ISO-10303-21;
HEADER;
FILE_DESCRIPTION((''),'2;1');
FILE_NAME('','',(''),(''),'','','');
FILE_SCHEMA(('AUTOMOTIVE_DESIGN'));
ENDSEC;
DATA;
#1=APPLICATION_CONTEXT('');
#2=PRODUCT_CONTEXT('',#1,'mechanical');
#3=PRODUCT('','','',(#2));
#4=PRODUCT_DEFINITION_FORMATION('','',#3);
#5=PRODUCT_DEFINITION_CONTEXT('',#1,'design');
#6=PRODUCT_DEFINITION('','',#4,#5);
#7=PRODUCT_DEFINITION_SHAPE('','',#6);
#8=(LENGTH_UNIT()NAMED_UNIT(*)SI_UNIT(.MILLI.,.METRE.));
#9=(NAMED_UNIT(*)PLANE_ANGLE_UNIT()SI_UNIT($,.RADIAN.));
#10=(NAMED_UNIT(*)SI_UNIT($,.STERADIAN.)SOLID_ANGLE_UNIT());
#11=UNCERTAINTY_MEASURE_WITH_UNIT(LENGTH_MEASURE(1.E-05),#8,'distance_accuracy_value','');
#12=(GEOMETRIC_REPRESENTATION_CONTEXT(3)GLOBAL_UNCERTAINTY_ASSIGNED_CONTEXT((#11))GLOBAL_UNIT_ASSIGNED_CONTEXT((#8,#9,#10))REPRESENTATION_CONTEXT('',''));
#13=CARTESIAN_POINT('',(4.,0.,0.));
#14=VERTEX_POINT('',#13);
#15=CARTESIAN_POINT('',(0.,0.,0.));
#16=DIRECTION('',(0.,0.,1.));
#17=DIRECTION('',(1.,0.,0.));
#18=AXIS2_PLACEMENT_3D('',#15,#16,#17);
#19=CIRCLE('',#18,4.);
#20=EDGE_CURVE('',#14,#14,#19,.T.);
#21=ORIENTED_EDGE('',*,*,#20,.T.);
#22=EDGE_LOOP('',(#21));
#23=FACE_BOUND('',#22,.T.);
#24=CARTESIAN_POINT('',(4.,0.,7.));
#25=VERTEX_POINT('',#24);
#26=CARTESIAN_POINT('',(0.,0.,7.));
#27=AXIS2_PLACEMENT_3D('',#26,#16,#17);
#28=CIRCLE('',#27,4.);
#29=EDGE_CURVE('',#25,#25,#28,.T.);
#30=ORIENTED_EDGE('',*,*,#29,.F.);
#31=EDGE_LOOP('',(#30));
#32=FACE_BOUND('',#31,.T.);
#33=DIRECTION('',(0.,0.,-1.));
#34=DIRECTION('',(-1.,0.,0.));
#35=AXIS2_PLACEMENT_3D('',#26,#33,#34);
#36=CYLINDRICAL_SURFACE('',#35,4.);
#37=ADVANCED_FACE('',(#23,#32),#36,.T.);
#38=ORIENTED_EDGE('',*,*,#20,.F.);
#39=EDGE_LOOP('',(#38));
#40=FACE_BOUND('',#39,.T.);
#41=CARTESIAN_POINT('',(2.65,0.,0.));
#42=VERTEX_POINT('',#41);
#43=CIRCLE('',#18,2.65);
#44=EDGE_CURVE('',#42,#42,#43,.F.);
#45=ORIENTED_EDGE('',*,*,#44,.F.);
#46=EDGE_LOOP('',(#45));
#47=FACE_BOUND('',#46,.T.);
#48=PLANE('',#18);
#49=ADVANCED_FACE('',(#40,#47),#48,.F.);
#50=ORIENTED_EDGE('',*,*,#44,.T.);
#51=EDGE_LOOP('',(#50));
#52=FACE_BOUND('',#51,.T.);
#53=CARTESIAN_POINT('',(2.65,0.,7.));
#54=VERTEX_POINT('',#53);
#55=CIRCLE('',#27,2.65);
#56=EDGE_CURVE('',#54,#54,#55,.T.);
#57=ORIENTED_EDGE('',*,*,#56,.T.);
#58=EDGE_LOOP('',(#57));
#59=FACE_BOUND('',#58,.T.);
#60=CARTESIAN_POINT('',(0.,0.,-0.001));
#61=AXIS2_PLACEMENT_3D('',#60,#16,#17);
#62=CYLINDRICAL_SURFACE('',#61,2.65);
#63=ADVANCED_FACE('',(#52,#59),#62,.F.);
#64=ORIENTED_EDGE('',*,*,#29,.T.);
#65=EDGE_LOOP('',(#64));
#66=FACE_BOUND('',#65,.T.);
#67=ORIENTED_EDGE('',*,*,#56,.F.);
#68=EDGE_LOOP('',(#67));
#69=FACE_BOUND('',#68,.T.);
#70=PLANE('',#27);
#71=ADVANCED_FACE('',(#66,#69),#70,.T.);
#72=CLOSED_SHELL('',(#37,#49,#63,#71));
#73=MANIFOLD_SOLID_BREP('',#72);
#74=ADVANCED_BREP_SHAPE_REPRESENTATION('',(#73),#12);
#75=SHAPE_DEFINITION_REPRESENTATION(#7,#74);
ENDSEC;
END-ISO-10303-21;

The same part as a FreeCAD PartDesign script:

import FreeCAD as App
import Part
import Sketcher
Q = App.Units.Quantity

doc = App.newDocument("Part")
params = doc.addObject("Spreadsheet::Sheet", "Params")
for row, (alias, value) in enumerate([
    ("sketch1_diameter", "8 mm"),
    ("pad1_length", "7 mm"),
    ("sketch2_diameter", "5.3 mm"),
], start=1):
    params.set(f"A{row}", alias)
    params.set(f"B{row}", "=" + value)
    params.setAlias(f"B{row}", alias)

body = doc.addObject("PartDesign::Body", "Body")

sketch1 = body.newObject("Sketcher::SketchObject", "Sketch")
sketch1.AttachmentSupport = (doc.getObject("XY_Plane"), [""])
sketch1.MapMode = "FlatFace"
sketch1.addGeometry(Part.Circle(App.Vector(0, 0, 0), App.Vector(0, 0, 1), 4), False)
sketch1.addConstraint([
    Sketcher.Constraint("Coincident", 0, 3, -1, 1),
    Sketcher.Constraint("Diameter", 0, Q("8 mm")),
])
sketch1.setExpression("Constraints[1]", "Params.sketch1_diameter")
pad1 = body.newObject("PartDesign::Pad", "Pad")
pad1.Profile = sketch1
pad1.setExpression("Length", "Params.pad1_length")

sketch2 = body.newObject("Sketcher::SketchObject", "Sketch001")
sketch2.AttachmentSupport = (doc.getObject("XY_Plane"), [""])
sketch2.MapMode = "FlatFace"
sketch2.AttachmentOffset = App.Placement(App.Vector(0, 0, 7), App.Rotation())
sketch2.addGeometry(Part.Circle(App.Vector(0, 0, 0), App.Vector(0, 0, 1), 2.6), False)
sketch2.addConstraint([
    Sketcher.Constraint("Coincident", 0, 3, -1, 1),
    Sketcher.Constraint("Diameter", 0, Q("5.3 mm")),
])
sketch2.setExpression("Constraints[1]", "Params.sketch2_diameter")
pocket1 = body.newObject("PartDesign::Pocket", "Pocket")
pocket1.Profile = sketch2
pocket1.Type = "UpToFirst"

doc.recompute()
